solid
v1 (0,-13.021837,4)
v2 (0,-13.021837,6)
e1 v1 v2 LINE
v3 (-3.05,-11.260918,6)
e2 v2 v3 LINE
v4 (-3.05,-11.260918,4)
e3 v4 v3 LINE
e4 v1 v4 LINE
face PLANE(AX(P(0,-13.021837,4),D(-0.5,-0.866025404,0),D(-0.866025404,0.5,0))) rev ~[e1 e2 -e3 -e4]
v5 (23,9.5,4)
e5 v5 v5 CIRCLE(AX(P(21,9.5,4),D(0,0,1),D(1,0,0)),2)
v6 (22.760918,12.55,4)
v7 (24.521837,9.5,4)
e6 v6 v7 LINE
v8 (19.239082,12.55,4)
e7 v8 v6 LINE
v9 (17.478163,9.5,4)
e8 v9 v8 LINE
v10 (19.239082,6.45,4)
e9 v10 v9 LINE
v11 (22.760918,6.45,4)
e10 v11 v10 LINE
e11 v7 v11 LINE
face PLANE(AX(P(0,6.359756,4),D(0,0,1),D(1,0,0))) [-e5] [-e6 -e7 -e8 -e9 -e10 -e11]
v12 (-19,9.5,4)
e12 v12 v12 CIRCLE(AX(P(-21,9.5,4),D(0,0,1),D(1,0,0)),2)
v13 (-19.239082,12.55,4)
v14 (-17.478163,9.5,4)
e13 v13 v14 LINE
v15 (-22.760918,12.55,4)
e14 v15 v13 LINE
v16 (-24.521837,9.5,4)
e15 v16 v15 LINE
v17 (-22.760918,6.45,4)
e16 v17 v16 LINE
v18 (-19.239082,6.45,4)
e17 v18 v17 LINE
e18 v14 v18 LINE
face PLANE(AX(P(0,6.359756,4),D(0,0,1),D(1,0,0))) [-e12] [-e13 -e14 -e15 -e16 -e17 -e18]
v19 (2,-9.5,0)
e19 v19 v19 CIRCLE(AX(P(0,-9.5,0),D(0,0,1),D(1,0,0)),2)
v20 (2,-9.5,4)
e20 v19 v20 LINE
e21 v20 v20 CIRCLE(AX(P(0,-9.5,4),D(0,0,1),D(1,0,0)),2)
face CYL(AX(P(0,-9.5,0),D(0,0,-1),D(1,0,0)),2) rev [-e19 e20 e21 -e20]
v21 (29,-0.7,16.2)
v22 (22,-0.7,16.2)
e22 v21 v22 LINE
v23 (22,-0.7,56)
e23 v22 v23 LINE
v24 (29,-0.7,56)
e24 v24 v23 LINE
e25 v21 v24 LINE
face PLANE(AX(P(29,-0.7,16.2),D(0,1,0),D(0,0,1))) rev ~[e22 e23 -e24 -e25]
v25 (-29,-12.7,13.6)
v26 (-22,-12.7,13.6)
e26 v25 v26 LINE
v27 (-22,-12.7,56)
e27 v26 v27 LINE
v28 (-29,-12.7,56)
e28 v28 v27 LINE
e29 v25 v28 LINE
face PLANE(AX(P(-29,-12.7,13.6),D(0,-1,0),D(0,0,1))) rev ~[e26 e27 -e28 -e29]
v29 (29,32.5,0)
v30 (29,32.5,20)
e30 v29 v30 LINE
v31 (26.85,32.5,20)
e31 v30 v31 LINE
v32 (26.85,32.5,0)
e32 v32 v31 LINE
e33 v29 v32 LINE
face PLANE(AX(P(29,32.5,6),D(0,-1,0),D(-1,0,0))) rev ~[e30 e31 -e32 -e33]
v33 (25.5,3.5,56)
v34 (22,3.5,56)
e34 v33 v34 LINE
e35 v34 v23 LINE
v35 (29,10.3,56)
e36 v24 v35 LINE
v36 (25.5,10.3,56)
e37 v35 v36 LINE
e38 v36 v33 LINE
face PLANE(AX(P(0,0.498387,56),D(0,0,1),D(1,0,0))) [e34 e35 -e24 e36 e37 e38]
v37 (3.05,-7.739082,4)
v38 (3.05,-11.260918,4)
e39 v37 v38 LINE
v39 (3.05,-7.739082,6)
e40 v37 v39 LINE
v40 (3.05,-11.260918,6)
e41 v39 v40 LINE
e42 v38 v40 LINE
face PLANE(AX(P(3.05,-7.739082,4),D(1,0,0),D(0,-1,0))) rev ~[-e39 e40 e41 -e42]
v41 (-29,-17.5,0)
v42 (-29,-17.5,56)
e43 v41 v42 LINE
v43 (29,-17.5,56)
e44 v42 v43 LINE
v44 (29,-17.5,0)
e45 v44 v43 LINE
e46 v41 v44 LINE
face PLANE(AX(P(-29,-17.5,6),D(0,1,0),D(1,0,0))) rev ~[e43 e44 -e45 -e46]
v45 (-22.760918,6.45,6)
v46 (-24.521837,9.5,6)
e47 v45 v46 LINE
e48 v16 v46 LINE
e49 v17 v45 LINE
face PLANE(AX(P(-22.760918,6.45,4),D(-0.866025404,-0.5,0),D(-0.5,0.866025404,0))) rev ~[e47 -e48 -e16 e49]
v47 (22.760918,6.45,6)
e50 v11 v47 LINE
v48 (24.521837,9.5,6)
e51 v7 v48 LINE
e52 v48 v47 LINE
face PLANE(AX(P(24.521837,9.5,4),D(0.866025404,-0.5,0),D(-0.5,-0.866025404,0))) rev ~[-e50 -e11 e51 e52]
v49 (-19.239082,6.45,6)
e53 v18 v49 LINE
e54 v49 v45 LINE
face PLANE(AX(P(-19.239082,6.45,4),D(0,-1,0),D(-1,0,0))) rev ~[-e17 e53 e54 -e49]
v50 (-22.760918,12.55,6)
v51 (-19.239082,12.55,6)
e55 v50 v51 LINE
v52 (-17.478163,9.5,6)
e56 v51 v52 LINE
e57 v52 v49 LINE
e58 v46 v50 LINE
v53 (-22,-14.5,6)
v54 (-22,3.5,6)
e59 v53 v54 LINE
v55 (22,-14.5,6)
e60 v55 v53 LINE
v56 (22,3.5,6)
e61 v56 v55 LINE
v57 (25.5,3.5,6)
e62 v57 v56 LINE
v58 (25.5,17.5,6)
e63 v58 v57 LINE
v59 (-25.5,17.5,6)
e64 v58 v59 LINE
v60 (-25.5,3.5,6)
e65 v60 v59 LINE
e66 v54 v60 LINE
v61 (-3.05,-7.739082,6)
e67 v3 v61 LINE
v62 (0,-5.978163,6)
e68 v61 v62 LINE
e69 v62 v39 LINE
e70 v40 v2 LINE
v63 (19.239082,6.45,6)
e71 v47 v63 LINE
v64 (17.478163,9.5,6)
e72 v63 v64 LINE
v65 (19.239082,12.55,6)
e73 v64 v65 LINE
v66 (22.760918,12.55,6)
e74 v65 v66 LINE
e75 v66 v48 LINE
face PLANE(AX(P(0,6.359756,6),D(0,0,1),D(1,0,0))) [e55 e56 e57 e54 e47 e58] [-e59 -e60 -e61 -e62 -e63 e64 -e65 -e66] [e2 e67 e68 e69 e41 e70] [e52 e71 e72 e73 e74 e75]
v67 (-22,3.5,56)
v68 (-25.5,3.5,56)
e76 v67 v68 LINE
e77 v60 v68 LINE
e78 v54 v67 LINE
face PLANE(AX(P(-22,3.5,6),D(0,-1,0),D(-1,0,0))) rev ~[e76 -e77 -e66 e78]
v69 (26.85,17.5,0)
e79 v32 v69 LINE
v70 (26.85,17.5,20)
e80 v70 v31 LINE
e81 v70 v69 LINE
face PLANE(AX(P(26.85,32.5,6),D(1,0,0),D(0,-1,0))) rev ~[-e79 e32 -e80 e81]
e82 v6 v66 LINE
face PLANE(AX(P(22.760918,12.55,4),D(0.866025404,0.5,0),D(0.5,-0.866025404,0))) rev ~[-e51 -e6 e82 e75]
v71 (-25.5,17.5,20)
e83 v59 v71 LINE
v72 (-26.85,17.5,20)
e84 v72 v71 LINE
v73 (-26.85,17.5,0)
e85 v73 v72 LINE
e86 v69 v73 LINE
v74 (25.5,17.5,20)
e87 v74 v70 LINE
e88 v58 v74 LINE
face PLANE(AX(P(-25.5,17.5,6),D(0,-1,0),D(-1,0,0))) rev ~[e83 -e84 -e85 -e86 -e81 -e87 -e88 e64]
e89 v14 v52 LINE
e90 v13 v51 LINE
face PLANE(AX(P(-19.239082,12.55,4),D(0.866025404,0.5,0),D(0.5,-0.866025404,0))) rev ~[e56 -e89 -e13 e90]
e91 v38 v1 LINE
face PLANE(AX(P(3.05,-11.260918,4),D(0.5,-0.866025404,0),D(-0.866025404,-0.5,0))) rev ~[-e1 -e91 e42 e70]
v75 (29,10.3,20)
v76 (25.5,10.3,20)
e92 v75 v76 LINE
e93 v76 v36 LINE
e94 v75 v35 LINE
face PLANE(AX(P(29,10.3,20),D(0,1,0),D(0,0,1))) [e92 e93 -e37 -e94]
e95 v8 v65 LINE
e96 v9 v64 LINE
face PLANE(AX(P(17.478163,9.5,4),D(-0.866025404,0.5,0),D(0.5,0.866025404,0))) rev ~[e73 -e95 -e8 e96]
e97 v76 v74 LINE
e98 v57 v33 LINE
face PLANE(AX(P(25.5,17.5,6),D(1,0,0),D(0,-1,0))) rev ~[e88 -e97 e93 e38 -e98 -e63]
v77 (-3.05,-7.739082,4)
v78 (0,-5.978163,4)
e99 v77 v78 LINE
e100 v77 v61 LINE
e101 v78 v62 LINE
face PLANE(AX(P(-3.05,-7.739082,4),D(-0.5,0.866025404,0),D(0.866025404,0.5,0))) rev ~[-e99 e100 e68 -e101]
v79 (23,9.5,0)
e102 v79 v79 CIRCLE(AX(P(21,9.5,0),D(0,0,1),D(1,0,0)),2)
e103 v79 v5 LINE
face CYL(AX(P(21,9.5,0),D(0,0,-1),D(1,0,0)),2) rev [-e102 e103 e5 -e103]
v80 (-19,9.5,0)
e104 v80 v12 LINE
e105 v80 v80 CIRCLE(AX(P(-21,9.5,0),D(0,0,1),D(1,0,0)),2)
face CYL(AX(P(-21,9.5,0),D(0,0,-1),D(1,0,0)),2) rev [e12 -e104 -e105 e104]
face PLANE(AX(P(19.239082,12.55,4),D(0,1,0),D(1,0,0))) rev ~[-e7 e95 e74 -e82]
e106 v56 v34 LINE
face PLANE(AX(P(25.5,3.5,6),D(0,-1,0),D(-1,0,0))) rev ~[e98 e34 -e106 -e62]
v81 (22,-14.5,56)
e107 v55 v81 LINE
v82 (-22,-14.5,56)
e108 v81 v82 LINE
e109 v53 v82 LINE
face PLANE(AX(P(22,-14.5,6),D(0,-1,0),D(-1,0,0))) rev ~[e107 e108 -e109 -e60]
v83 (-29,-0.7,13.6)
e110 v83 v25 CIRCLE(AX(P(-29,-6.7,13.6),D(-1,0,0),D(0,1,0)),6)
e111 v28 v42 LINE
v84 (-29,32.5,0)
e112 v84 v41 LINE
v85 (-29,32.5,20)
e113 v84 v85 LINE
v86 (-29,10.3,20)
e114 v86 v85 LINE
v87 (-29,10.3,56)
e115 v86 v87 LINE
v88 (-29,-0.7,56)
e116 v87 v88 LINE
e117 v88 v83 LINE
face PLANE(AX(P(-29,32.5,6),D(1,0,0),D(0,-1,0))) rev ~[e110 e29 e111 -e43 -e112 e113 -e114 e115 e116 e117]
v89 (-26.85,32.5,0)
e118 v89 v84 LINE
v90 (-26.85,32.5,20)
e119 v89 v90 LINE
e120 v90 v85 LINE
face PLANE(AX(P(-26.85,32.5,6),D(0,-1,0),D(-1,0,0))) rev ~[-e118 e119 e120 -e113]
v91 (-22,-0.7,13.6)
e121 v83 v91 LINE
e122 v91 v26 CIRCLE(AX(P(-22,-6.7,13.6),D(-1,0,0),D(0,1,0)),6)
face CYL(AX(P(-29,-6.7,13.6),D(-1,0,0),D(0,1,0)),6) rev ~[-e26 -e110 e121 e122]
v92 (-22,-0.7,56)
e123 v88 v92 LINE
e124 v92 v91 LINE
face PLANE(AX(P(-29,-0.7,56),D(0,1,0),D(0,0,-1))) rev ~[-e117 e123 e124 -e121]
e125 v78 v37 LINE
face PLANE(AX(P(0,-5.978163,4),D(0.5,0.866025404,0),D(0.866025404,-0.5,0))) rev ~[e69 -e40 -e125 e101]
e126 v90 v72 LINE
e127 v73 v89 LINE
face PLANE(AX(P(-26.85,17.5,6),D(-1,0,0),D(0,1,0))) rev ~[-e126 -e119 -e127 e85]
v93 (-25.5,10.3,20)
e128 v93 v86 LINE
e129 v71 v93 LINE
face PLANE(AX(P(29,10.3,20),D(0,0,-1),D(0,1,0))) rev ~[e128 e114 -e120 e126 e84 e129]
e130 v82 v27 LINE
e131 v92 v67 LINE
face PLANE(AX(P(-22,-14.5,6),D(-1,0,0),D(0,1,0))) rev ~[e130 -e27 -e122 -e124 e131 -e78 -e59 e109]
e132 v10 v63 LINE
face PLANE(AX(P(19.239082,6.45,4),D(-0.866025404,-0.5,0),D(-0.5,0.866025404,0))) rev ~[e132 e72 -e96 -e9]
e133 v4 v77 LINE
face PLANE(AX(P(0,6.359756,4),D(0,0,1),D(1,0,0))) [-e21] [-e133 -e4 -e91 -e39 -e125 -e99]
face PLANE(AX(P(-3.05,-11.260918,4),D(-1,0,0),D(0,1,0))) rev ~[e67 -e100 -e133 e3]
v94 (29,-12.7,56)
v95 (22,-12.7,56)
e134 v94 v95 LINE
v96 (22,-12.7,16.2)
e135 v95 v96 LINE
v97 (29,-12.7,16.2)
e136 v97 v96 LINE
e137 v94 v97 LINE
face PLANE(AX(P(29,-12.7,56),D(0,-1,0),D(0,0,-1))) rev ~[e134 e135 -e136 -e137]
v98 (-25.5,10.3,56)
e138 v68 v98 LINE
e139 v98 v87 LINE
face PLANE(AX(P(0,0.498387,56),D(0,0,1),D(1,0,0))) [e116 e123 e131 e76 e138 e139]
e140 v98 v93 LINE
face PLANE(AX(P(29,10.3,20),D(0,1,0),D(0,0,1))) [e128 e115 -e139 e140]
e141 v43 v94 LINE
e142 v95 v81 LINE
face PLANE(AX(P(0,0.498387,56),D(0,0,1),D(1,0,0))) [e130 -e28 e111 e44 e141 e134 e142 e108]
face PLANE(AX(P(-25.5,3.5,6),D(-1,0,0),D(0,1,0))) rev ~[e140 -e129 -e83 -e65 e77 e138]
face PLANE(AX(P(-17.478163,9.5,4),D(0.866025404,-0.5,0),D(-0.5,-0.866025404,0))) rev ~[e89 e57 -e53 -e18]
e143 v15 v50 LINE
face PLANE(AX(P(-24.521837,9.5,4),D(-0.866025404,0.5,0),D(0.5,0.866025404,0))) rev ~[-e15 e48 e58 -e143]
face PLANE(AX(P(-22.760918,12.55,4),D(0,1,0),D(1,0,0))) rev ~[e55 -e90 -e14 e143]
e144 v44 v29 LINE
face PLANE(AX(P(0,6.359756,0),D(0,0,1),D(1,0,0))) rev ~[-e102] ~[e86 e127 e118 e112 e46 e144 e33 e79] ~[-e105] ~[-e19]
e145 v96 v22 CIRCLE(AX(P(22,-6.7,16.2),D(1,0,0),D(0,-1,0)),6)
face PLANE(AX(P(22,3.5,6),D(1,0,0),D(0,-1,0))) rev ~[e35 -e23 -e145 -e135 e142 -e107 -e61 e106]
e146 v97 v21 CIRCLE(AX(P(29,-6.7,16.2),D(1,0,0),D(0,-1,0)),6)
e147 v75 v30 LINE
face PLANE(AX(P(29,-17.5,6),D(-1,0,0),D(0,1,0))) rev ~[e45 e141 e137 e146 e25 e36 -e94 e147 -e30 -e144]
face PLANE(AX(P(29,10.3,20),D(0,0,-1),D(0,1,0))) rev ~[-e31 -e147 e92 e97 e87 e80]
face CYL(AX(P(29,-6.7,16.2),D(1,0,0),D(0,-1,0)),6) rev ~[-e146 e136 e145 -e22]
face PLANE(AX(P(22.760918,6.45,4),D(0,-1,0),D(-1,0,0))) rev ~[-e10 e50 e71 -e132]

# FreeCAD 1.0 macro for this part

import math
import FreeCAD as App
import Part
import Sketcher

V = App.Vector
Q = App.Units.Quantity


def add_polygon(sketch, points):
    """Adds a closed chain of lines whose ends are joined by coincident constraints."""
    first, n = sketch.GeometryCount, len(points)
    for a, b in zip(points, points[1:] + points[:1]):
        sketch.addGeometry(Part.LineSegment(App.Vector(*a, 0), App.Vector(*b, 0)), False)
    for i in range(n):
        sketch.addConstraint(Sketcher.Constraint("Coincident", first + i, 2, first + (i + 1) % n, 1))

doc = App.newDocument("Part")
body = doc.addObject("PartDesign::Body", "Body")

# Sketch on XY plane
sketch1 = body.newObject("Sketcher::SketchObject", "Sketch")
sketch1.AttachmentSupport = (doc.getObject("XY_Plane"), [""])
sketch1.MapMode = "FlatFace"
add_polygon(sketch1, [(26.9, 17.5), (-26.9, 17.5), (-26.9, 32.5), (-29, 32.5), (-29, -17.5), (29, -17.5), (29, 32.5), (26.9, 32.5)])  # lines 0-7
sketch1.addGeometry(Part.Circle(V(0, -9.5, 0), V(0, 0, 1), 2), False)  # 8
sketch1.addGeometry(Part.Circle(V(-21, 9.5, 0), V(0, 0, 1), 2), False)  # 9
sketch1.addGeometry(Part.Circle(V(21, 9.5, 0), V(0, 0, 1), 2), False)  # 10
sketch1.addConstraint([
    Sketcher.Constraint("Horizontal", 0),
    Sketcher.Constraint("Vertical", 1),
    Sketcher.Constraint("Horizontal", 2),
    Sketcher.Constraint("Vertical", 3),
    Sketcher.Constraint("Horizontal", 4),
    Sketcher.Constraint("Vertical", 5),
    Sketcher.Constraint("Horizontal", 6),
    Sketcher.Constraint("Vertical", 7),
    Sketcher.Constraint("Equal", 8, 9),
    Sketcher.Constraint("Equal", 9, 10),
    Sketcher.Constraint("Symmetric", 9, 3, 10, 3, -2),
    Sketcher.Constraint("Symmetric", 2, 2, 5, 2, -2),
    Sketcher.Constraint("PointOnObject", 8, 3, -2),
    Sketcher.Constraint("Equal", 2, 6),
    Sketcher.Constraint("Diameter", 8, 4.0),
    Sketcher.Constraint("DistanceX", 4, 1, 4, 2, 58.0),
    Sketcher.Constraint("DistanceY", 1, 1, 1, 2, 15.0),
    Sketcher.Constraint("DistanceY", 3, 2, 3, 1, 50.0),
    Sketcher.Constraint("DistanceX", 0, 2, 0, 1, 53.7),
    Sketcher.Constraint("DistanceX", 9, 3, -1, 1, 21.0),
    Sketcher.Constraint("DistanceY", 8, 3, 9, 3, 19.0),
    Sketcher.Constraint("DistanceY", 9, 3, 0, 2, 8.0),
    Sketcher.Constraint("DistanceY", 8, 3, -1, 1, 9.5),
])
pad1 = body.newObject("PartDesign::Pad", "Pad")
pad1.Profile = sketch1
pad1.Length = 4

# Sketch on XY plane
sketch2 = body.newObject("Sketcher::SketchObject", "Sketch001")
sketch2.AttachmentSupport = (doc.getObject("XY_Plane"), [""])
sketch2.MapMode = "FlatFace"
sketch2.AttachmentOffset = App.Placement(V(0, 0, 4), App.Rotation())
add_polygon(sketch2, [(26.9, 32.5), (26.9, 17.5), (-26.9, 17.5), (-26.9, 32.5), (-29, 32.5), (-29, -17.5), (29, -17.5), (29, 32.5)])  # lines 0-7
add_polygon(sketch2, [(3, -7.7), (3, -11.3), (0, -13), (-3, -11.3), (-3, -7.7), (0, -6)])  # lines 8-13
add_polygon(sketch2, [(-19.2, 12.6), (-17.5, 9.5), (-19.2, 6.5), (-22.8, 6.5), (-24.5, 9.5), (-22.8, 12.6)])  # lines 14-19
add_polygon(sketch2, [(19.2, 12.6), (22.8, 12.6), (24.5, 9.5), (22.8, 6.5), (19.2, 6.5), (17.5, 9.5)])  # lines 20-25
sketch2.addConstraint([
    Sketcher.Constraint("Vertical", 0),
    Sketcher.Constraint("Horizontal", 1),
    Sketcher.Constraint("Vertical", 2),
    Sketcher.Constraint("Horizontal", 3),
    Sketcher.Constraint("Vertical", 4),
    Sketcher.Constraint("Horizontal", 5),
    Sketcher.Constraint("Vertical", 6),
    Sketcher.Constraint("Horizontal", 7),
    Sketcher.Constraint("Vertical", 8),
    Sketcher.Constraint("Vertical", 11),
    Sketcher.Constraint("Horizontal", 16),
    Sketcher.Constraint("Horizontal", 19),
    Sketcher.Constraint("Horizontal", 20),
    Sketcher.Constraint("Horizontal", 23),
    Sketcher.Constraint("Symmetric", 3, 2, 6, 2, -2),
    Sketcher.Constraint("Symmetric", 8, 2, 10, 2, -2),
    Sketcher.Constraint("Symmetric", 18, 2, 20, 2, -2),
    Sketcher.Constraint("Symmetric", 17, 2, 21, 2, -2),
    Sketcher.Constraint("Symmetric", 16, 2, 22, 2, -2),
    Sketcher.Constraint("Symmetric", 14, 2, 24, 2, -2),
    Sketcher.Constraint("PointOnObject", 9, 2, -2),
    Sketcher.Constraint("PointOnObject", 12, 2, -2),
    Sketcher.Constraint("Parallel", 9, 12),
    Sketcher.Constraint("Parallel", 10, 13),
    Sketcher.Constraint("Perpendicular", 12, 14),
    Sketcher.Constraint("Perpendicular", 13, 15),
    Sketcher.Constraint("Parallel", 14, 17),
    Sketcher.Constraint("Parallel", 15, 18),
    Sketcher.Constraint("Parallel", 21, 24),
    Sketcher.Constraint("Parallel", 22, 25),
    Sketcher.Constraint("Horizontal", 14, 2, 17, 2),
    Sketcher.Constraint("Vertical", 16, 2, 18, 2),
    Sketcher.Constraint("Equal", 3, 7),
    Sketcher.Constraint("Equal", 23, 8),
    Sketcher.Constraint("Equal", 13, 14),
    Sketcher.Constraint("DistanceX", 5, 1, 5, 2, 58.0),
    Sketcher.Constraint("DistanceY", 0, 2, 0, 1, 15.0),
    Sketcher.Constraint("DistanceY", 4, 2, 4, 1, 50.0),
    Sketcher.Constraint("Angle", 9, Q("-150 deg")),
    Sketcher.Constraint("DistanceX", 1, 2, 1, 1, 53.7),
    Sketcher.Constraint("DistanceY", 14, 2, 1, 2, 8.0),
    Sketcher.Constraint("DistanceY", -1, 1, 0, 2, 17.5),
    Sketcher.Constraint("DistanceX", 8, 2, 0, 2, 23.8),
    Sketcher.Constraint("DistanceX", 16, 2, 16, 1, 3.521837),
    Sketcher.Constraint("DistanceY", 8, 2, -1, 1, 11.260918),
    Sketcher.Constraint("DistanceX", 15, 2, -1, 1, 19.239082),
])
pad2 = body.newObject("PartDesign::Pad", "Pad001")
pad2.Profile = sketch2
pad2.Length = 2

# Sketch on XY plane
sketch3 = body.newObject("Sketcher::SketchObject", "Sketch002")
sketch3.AttachmentSupport = (doc.getObject("XY_Plane"), [""])
sketch3.MapMode = "FlatFace"
sketch3.AttachmentOffset = App.Placement(V(0, 0, 6), App.Rotation())
add_polygon(sketch3, [(-25.5, 3.5), (-25.5, 17.5), (-26.9, 17.5), (-26.9, 32.5), (-29, 32.5), (-29, -17.5), (29, -17.5), (29, 32.5), (26.9, 32.5), (26.9, 17.5), (25.5, 17.5), (25.5, 3.5), (22, 3.5), (22, -14.5), (-22, -14.5), (-22, 3.5)])  # lines 0-15
sketch3.addConstraint([
    Sketcher.Constraint("Vertical", 0),
    Sketcher.Constraint("Horizontal", 1),
    Sketcher.Constraint("Vertical", 2),
    Sketcher.Constraint("Horizontal", 3),
    Sketcher.Constraint("Vertical", 4),
    Sketcher.Constraint("Horizontal", 5),
    Sketcher.Constraint("Vertical", 6),
    Sketcher.Constraint("Horizontal", 7),
    Sketcher.Constraint("Vertical", 8),
    Sketcher.Constraint("Horizontal", 9),
    Sketcher.Constraint("Vertical", 10),
    Sketcher.Constraint("Horizontal", 11),
    Sketcher.Constraint("Vertical", 12),
    Sketcher.Constraint("Horizontal", 13),
    Sketcher.Constraint("Vertical", 14),
    Sketcher.Constraint("Horizontal", 15),
    Sketcher.Constraint("Symmetric", 3, 2, 6, 2, -2),
    Sketcher.Constraint("Symmetric", 1, 2, 8, 2, -2),
    Sketcher.Constraint("Symmetric", 11, 2, 14, 2, -2),
    Sketcher.Constraint("Equal", 1, 9),
    Sketcher.Constraint("DistanceX", 5, 1, 5, 2, 58.0),
    Sketcher.Constraint("DistanceX", 13, 2, 13, 1, 44.0),
    Sketcher.Constraint("DistanceY", 0, 1, 0, 2, 14.0),
    Sketcher.Constraint("DistanceY", 2, 1, 2, 2, 15.0),
    Sketcher.Constraint("DistanceY", 4, 2, 4, 1, 50.0),
    Sketcher.Constraint("DistanceY", 12, 2, 12, 1, 18.0),
    Sketcher.Constraint("DistanceX", 11, 2, 11, 1, 3.5),
    Sketcher.Constraint("DistanceX", 1, 2, 1, 1, 1.35),
    Sketcher.Constraint("DistanceY", -1, 1, 0, 2, 17.5),
])
pad3 = body.newObject("PartDesign::Pad", "Pad002")
pad3.Profile = sketch3
pad3.Length = 50

# Sketch on YZ plane
sketch4 = body.newObject("Sketcher::SketchObject", "Sketch003")
sketch4.AttachmentSupport = (doc.getObject("YZ_Plane"), [""])
sketch4.MapMode = "FlatFace"
sketch4.AttachmentOffset = App.Placement(V(0, 0, -29), App.Rotation())
sketch4.addGeometry([
    Part.LineSegment(V(-1, 56, 0), V(-1, 14, 0)),
    Part.ArcOfCircle(Part.Circle(V(-7, 14, 0), V(0, 0, 1), 6), math.radians(180), math.radians(360)),
    Part.LineSegment(V(-13, 14, 0), V(-13, 56, 0)),
    Part.LineSegment(V(-13, 56, 0), V(-1, 56, 0)),
], False)
sketch4.addConstraint([
    Sketcher.Constraint("Tangent", 0, 2, 1, 2),
    Sketcher.Constraint("Tangent", 1, 1, 2, 1),
    Sketcher.Constraint("Coincident", 2, 2, 3, 1),
    Sketcher.Constraint("Coincident", 3, 2, 0, 1),
    Sketcher.Constraint("Vertical", 0),
    Sketcher.Constraint("Vertical", 2),
    Sketcher.Constraint("Horizontal", 3),
    Sketcher.Constraint("Radius", 1, 6.0),
    Sketcher.Constraint("DistanceY", 0, 2, 0, 1, 42.4),
    Sketcher.Constraint("DistanceY", -1, 1, 2, 2, 56.0),
    Sketcher.Constraint("DistanceX", 1, 3, -1, 1, 6.7),
])
pocket1 = body.newObject("PartDesign::Pocket", "Pocket")
pocket1.Profile = sketch4
pocket1.Length = 8
pocket1.Reversed = True

# Sketch on YZ plane
sketch5 = body.newObject("Sketcher::SketchObject", "Sketch004")
sketch5.AttachmentSupport = (doc.getObject("YZ_Plane"), [""])
sketch5.MapMode = "FlatFace"
sketch5.AttachmentOffset = App.Placement(V(0, 0, 29), App.Rotation())
sketch5.addGeometry([
    Part.LineSegment(V(-13, 56, 0), V(-13, 16, 0)),
    Part.ArcOfCircle(Part.Circle(V(-7, 16, 0), V(0, 0, 1), 6), math.radians(180), math.radians(360)),
    Part.LineSegment(V(-1, 16, 0), V(-1, 56, 0)),
    Part.LineSegment(V(-1, 56, 0), V(-13, 56, 0)),
], False)
sketch5.addConstraint([
    Sketcher.Constraint("Tangent", 0, 2, 1, 1),
    Sketcher.Constraint("Tangent", 1, 2, 2, 1),
    Sketcher.Constraint("Coincident", 2, 2, 3, 1),
    Sketcher.Constraint("Coincident", 3, 2, 0, 1),
    Sketcher.Constraint("Vertical", 0),
    Sketcher.Constraint("Vertical", 2),
    Sketcher.Constraint("Horizontal", 3),
    Sketcher.Constraint("Radius", 1, 6.0),
    Sketcher.Constraint("DistanceY", 0, 2, 0, 1, 39.8),
    Sketcher.Constraint("DistanceY", -1, 1, 2, 2, 56.0),
    Sketcher.Constraint("DistanceX", 1, 3, -1, 1, 6.7),
])
pocket2 = body.newObject("PartDesign::Pocket", "Pocket001")
pocket2.Profile = sketch5
pocket2.Length = 8

# Sketch on YZ plane
sketch6 = body.newObject("Sketcher::SketchObject", "Sketch005")
sketch6.AttachmentSupport = (doc.getObject("YZ_Plane"), [""])
sketch6.MapMode = "FlatFace"
sketch6.AttachmentOffset = App.Placement(V(0, 0, 29), App.Rotation())
add_polygon(sketch6, [(10, 56), (10, 20), (32, 20), (32, 56)])  # lines 0-3
sketch6.addConstraint([
    Sketcher.Constraint("Vertical", 0),
    Sketcher.Constraint("Horizontal", 1),
    Sketcher.Constraint("Vertical", 2),
    Sketcher.Constraint("Horizontal", 3),
    Sketcher.Constraint("DistanceY", 0, 2, 0, 1, 36.0),
    Sketcher.Constraint("DistanceX", 1, 1, 1, 2, 22.2),
    Sketcher.Constraint("DistanceY", -1, 1, 0, 2, 20.0),
    Sketcher.Constraint("DistanceX", -1, 1, 0, 2, 10.3),
])
pocket3 = body.newObject("PartDesign::Pocket", "Pocket002")
pocket3.Profile = sketch6
pocket3.Length = 60

doc.recompute()
